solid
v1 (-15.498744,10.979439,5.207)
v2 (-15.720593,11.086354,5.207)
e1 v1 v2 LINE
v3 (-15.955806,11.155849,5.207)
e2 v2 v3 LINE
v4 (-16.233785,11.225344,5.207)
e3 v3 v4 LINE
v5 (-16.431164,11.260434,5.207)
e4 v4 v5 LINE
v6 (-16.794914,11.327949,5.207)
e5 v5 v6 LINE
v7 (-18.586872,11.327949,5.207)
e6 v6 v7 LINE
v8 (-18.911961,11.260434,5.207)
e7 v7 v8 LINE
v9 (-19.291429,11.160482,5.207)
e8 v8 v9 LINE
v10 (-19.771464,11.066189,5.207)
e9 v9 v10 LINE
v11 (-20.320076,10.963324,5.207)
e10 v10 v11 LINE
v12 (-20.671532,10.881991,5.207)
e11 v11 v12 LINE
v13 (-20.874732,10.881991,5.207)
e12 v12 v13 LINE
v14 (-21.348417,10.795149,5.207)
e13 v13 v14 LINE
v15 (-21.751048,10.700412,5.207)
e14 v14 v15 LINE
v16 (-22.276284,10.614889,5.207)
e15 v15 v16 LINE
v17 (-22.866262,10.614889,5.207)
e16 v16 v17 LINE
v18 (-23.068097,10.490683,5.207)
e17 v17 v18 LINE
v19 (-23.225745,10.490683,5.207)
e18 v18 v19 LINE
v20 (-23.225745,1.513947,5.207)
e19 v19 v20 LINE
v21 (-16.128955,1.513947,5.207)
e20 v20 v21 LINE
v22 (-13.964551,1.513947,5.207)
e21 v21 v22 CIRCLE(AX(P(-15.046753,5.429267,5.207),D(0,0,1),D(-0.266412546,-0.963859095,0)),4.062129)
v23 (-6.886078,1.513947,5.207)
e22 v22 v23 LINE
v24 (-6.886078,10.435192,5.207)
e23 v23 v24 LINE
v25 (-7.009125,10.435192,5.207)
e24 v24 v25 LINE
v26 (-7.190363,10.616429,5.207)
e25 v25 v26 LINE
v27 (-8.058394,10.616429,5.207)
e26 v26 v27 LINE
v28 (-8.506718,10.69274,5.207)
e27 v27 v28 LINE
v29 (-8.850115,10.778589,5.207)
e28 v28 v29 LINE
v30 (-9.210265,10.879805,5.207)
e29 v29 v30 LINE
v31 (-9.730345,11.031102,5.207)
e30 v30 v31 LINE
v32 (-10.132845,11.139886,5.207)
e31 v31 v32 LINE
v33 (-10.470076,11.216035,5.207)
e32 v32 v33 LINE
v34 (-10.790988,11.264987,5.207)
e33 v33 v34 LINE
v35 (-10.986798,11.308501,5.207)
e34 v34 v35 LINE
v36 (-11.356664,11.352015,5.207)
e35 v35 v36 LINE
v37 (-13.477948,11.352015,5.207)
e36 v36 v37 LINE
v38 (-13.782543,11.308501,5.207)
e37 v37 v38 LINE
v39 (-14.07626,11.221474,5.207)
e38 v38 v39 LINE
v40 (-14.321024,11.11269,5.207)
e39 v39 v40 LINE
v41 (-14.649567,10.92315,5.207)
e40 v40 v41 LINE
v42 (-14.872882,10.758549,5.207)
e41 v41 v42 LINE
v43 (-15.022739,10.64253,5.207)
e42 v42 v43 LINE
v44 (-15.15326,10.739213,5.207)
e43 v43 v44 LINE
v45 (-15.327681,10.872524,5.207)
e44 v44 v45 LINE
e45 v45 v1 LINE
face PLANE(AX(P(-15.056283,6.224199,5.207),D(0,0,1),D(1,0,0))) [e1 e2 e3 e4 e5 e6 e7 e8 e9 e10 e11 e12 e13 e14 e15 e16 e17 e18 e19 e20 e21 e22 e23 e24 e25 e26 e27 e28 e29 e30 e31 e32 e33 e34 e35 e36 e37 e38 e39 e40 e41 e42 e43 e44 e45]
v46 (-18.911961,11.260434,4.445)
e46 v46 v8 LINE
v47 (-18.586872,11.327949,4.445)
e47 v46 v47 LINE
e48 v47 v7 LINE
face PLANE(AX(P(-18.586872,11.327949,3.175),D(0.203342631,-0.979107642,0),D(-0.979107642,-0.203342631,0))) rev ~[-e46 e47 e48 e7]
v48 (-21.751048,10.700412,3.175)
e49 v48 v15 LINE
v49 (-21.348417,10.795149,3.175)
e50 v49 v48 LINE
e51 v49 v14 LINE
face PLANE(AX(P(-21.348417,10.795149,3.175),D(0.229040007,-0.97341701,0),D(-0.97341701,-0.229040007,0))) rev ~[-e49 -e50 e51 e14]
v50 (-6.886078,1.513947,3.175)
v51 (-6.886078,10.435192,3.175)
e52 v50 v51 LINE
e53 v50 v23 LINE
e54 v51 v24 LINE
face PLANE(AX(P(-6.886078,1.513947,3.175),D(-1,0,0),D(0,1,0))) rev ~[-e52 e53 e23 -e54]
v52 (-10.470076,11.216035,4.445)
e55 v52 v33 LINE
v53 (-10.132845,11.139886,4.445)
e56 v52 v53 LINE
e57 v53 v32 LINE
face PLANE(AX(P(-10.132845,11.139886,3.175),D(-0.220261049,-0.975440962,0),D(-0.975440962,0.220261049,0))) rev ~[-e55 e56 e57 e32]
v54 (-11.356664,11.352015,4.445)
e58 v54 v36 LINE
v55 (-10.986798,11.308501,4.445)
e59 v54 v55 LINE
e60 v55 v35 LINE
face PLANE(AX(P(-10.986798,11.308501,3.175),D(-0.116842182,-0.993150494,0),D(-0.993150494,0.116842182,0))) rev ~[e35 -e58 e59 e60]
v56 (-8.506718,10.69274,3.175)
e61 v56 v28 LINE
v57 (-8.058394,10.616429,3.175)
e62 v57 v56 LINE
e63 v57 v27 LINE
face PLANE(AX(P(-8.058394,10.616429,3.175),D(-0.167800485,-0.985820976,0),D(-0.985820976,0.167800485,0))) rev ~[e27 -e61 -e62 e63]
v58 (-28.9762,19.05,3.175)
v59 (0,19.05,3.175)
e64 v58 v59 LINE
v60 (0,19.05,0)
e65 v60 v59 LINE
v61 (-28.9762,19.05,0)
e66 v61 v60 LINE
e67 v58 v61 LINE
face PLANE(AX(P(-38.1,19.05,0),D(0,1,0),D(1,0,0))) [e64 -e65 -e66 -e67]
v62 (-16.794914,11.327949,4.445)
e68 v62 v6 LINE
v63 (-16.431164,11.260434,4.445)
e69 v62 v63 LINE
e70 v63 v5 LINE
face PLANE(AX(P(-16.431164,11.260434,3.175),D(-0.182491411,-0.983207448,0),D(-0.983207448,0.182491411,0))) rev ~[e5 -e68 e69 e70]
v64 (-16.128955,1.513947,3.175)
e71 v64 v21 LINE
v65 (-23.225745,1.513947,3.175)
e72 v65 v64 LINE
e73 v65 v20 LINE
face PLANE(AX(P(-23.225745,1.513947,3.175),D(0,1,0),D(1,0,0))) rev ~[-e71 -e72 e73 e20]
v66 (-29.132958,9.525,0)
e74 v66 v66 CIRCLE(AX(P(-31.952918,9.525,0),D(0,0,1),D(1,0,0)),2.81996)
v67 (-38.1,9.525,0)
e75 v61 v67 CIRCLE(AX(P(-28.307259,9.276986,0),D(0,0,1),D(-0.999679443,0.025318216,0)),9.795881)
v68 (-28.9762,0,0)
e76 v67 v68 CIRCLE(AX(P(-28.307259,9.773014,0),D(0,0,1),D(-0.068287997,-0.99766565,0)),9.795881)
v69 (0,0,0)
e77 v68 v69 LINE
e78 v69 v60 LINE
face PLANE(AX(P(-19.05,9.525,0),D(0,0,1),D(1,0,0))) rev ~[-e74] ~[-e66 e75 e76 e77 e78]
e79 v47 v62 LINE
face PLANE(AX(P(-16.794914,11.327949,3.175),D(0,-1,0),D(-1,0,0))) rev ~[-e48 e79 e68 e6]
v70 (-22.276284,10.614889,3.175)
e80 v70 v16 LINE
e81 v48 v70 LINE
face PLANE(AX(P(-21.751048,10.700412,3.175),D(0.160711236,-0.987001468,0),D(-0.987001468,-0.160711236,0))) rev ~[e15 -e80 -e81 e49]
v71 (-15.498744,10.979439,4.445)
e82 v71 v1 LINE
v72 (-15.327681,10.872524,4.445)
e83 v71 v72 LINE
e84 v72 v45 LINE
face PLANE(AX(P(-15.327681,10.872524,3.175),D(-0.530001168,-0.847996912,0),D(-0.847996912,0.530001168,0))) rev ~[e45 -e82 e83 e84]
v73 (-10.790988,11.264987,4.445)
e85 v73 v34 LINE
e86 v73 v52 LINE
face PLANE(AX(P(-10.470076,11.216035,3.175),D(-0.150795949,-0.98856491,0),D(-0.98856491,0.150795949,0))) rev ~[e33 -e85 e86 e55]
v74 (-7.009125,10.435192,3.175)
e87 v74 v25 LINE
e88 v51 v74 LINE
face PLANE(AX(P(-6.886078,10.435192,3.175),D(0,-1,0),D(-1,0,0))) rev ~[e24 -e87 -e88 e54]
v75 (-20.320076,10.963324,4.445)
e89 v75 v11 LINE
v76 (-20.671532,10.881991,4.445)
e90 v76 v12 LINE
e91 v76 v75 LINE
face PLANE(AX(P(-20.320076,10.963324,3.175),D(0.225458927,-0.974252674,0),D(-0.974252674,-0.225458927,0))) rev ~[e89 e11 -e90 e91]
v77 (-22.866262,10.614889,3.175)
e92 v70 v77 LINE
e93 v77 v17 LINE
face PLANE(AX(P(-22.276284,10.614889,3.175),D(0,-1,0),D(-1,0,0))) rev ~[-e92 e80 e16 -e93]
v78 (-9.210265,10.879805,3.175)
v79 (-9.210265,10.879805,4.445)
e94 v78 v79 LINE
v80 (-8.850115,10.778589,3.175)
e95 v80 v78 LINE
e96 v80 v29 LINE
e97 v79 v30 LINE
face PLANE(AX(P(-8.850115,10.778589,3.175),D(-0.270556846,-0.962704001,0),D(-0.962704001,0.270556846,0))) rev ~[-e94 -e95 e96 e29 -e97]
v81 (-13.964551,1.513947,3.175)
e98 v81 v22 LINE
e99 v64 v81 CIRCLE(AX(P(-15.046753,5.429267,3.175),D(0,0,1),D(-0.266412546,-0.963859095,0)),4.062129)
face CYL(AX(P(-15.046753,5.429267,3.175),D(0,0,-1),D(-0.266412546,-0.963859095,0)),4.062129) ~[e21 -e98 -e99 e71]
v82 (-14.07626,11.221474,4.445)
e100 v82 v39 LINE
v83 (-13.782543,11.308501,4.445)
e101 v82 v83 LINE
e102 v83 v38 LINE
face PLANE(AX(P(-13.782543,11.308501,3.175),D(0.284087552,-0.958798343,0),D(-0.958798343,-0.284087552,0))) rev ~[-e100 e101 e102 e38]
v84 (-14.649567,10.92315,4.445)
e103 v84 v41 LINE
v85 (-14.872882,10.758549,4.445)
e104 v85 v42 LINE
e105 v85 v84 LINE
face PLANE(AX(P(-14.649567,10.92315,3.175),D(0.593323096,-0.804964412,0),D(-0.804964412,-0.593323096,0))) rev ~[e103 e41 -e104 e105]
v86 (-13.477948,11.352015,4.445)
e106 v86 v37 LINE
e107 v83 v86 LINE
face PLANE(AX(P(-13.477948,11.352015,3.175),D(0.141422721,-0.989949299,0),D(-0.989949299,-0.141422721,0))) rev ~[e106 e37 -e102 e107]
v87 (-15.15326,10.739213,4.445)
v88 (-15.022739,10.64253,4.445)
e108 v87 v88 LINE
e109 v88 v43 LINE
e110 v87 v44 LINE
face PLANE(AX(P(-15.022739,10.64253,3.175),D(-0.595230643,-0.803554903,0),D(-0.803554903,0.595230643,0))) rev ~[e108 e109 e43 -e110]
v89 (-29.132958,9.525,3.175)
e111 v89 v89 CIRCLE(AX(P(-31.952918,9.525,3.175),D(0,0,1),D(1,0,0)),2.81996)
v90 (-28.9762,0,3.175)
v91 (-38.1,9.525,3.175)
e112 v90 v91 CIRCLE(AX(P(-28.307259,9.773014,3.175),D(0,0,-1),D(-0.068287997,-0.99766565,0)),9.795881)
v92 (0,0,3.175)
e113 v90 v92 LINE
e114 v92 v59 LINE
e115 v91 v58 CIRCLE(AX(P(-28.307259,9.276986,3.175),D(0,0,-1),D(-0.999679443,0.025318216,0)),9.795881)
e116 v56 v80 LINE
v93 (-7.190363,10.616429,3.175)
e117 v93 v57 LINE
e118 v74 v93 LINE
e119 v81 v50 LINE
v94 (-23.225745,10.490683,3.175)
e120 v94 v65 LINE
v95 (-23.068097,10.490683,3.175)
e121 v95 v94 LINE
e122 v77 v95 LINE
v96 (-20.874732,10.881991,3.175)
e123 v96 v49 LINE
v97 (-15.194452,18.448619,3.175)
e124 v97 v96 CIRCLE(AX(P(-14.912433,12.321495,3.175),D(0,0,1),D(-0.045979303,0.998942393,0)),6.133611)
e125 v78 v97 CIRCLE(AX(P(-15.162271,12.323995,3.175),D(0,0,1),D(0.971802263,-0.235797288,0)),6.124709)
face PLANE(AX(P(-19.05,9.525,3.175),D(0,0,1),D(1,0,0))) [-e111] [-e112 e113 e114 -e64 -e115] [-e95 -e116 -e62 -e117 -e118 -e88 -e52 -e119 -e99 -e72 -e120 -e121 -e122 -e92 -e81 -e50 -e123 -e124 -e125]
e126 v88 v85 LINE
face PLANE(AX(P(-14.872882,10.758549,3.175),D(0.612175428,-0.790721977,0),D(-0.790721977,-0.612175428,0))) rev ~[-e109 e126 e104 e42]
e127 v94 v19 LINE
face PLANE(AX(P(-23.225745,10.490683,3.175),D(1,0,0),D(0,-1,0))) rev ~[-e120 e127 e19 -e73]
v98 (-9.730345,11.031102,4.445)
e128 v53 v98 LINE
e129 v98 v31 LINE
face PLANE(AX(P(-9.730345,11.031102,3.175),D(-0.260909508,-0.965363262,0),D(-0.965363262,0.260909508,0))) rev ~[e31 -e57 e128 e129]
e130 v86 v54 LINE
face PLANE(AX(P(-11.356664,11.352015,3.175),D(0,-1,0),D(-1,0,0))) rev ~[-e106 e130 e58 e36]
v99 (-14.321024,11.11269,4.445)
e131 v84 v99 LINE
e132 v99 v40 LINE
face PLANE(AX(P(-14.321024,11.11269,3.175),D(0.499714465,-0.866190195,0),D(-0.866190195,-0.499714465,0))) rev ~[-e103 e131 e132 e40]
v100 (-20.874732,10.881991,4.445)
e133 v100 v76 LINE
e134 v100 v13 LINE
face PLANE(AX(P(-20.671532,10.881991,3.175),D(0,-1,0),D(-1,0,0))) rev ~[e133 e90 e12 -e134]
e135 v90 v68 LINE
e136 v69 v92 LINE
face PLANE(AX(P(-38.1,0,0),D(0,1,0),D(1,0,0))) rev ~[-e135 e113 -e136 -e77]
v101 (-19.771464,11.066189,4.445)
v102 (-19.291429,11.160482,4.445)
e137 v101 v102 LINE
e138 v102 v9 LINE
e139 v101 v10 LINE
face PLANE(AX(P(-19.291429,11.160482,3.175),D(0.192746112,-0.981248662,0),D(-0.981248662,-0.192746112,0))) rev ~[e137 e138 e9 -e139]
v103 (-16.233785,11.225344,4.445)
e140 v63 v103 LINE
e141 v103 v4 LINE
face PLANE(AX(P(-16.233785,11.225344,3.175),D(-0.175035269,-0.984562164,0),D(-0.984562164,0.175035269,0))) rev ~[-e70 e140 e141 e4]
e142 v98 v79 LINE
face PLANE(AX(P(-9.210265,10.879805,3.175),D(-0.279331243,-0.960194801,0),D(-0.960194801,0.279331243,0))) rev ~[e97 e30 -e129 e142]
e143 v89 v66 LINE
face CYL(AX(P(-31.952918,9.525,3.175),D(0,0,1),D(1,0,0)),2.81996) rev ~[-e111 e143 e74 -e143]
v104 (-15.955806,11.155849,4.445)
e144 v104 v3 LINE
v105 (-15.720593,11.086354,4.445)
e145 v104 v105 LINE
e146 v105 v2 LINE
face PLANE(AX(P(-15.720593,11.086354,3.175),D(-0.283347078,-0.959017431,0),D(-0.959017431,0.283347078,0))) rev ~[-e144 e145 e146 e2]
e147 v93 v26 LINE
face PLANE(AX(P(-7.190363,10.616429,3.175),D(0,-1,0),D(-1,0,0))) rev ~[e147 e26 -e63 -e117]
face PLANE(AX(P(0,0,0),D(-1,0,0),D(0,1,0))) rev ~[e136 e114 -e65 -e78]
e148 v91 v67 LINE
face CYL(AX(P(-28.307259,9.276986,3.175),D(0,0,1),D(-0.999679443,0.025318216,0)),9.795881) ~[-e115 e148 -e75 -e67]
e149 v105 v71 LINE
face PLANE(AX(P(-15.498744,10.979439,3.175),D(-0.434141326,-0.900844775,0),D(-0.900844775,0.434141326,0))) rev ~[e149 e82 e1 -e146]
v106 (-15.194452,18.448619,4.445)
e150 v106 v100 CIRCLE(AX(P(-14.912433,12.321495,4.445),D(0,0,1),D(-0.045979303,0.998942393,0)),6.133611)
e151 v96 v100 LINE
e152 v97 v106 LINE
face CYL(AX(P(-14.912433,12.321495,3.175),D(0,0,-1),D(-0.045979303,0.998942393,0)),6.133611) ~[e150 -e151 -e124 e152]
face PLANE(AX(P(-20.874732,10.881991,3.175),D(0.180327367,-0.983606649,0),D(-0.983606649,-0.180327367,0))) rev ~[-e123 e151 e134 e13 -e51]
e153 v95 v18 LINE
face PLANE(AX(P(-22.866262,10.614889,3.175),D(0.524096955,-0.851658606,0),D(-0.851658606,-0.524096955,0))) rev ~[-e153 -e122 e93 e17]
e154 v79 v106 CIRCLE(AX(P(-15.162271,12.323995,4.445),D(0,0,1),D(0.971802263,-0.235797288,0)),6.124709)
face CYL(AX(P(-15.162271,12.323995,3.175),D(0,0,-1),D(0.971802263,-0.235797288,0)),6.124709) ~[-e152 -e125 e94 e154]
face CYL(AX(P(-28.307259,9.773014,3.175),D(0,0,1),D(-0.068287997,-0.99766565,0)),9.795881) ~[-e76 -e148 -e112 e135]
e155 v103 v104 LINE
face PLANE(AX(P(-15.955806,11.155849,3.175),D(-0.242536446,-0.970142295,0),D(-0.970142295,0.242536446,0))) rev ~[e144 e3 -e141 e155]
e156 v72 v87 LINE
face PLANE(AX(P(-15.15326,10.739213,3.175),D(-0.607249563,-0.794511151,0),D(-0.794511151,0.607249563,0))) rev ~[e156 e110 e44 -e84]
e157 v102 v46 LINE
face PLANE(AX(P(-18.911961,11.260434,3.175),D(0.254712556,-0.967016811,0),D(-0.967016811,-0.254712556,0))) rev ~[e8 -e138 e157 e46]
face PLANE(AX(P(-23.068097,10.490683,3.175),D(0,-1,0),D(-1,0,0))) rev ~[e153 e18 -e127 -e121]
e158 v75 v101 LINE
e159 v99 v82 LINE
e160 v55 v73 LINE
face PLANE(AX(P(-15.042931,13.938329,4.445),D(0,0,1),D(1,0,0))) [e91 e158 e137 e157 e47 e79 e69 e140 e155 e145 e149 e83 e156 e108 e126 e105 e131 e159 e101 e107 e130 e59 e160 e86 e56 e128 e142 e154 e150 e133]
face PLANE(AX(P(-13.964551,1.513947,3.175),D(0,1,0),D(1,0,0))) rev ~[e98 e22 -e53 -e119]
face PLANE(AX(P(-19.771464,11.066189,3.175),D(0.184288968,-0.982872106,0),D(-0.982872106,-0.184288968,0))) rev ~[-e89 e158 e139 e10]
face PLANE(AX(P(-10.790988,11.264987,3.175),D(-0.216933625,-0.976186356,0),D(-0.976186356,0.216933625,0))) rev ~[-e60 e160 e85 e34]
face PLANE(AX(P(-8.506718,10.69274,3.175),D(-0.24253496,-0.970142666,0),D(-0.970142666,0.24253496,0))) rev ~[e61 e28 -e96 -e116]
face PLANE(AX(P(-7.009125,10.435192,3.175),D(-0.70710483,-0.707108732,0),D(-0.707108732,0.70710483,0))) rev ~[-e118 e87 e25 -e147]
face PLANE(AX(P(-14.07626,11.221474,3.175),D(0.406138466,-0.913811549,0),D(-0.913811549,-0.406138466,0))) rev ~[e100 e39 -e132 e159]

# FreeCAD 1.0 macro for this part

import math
import FreeCAD as App
import Part
import Sketcher
Q = App.Units.Quantity

doc = App.newDocument("Part")
params = doc.addObject("Spreadsheet::Sheet", "Params")
for row, (alias, value) in enumerate([
    ("sketch1_width", "1.5 in"),
    ("sketch1_height", "0.75 in"),
    ("pad1_length", "0.125 in"),
    ("sketch2_height", "0.375 in"),
    ("sketch3_width", "0.008 in"),
    ("pad2_length", "0.05 in"),
    ("sketch4_width", "0.008 in"),
    ("pad3_length", "0.08 in"),
], start=1):
    params.set(f"A{row}", alias)
    params.set(f"B{row}", "=" + value)
    params.setAlias(f"B{row}", alias)

body = doc.addObject("PartDesign::Body", "Body")

# Sketch on XY plane
sketch1 = doc.addObject("Sketcher::SketchObject", "Sketch")
body.addObject(sketch1)
sketch1.AttachmentSupport = (doc.XY_Plane, [""])
sketch1.MapMode = "FlatFace"
sketch1.addGeometry(Part.LineSegment(App.Vector(-38, 19, 0), App.Vector(-38, 0, 0)), False)
sketch1.addGeometry(Part.LineSegment(App.Vector(-38, 0, 0), App.Vector(0, 0, 0)), False)
sketch1.addGeometry(Part.LineSegment(App.Vector(0, 0, 0), App.Vector(0, 19, 0)), False)
sketch1.addGeometry(Part.LineSegment(App.Vector(0, 19, 0), App.Vector(-38, 19, 0)), False)
sketch1.addConstraint(Sketcher.Constraint("Coincident", 0, 2, 1, 1))
sketch1.addConstraint(Sketcher.Constraint("Coincident", 1, 2, 2, 1))
sketch1.addConstraint(Sketcher.Constraint("Coincident", 2, 2, 3, 1))
sketch1.addConstraint(Sketcher.Constraint("Coincident", 3, 2, 0, 1))
sketch1.addConstraint(Sketcher.Constraint("Vertical", 0))
sketch1.addConstraint(Sketcher.Constraint("Horizontal", 1))
sketch1.addConstraint(Sketcher.Constraint("Vertical", 2))
sketch1.addConstraint(Sketcher.Constraint("Horizontal", 3))
sketch1.addConstraint(Sketcher.Constraint("Coincident", 1, 2, -1, 1))
sketch1.addConstraint(Sketcher.Constraint("DistanceX", 1, 1, 1, 2, Q("1.5 in")))
sketch1.addConstraint(Sketcher.Constraint("DistanceY", 0, 2, 0, 1, Q("0.75 in")))
sketch1.setExpression("Constraints[9]", "Params.sketch1_width")
sketch1.setExpression("Constraints[10]", "Params.sketch1_height")
pad1 = doc.addObject("PartDesign::Pad", "Pad")
body.addObject(pad1)
pad1.Profile = sketch1
pad1.setExpression("Length", "Params.pad1_length")

# Sketch on XY plane
sketch2 = doc.addObject("Sketcher::SketchObject", "Sketch001")
body.addObject(sketch2)
sketch2.AttachmentSupport = (doc.XY_Plane, [""])
sketch2.MapMode = "FlatFace"
sketch2.AttachmentOffset = App.Placement(App.Vector(0, 0, 0.125 * 25.4), App.Rotation())
sketch2.addGeometry(Part.ArcOfCircle(Part.Circle(App.Vector(-28.3, 9.3, 0), App.Vector(0, 0, 1), 9.8), math.radians(94), math.radians(179)), False)
sketch2.addGeometry(Part.LineSegment(App.Vector(-29, 19.1, 0), App.Vector(-38.1, 19.1, 0)), False)
sketch2.addGeometry(Part.LineSegment(App.Vector(-38.1, 19.1, 0), App.Vector(-38.1, 9.5, 0)), False)
sketch2.addGeometry(Part.ArcOfCircle(Part.Circle(App.Vector(-28.3, 9.8, 0), App.Vector(0, 0, 1), 9.8), math.radians(-179), math.radians(-94)), False)
sketch2.addGeometry(Part.LineSegment(App.Vector(-38.1, 9.5, 0), App.Vector(-38.1, 0, 0)), False)
sketch2.addGeometry(Part.LineSegment(App.Vector(-38.1, 0, 0), App.Vector(-29, 0, 0)), False)
sketch2.addGeometry(Part.Circle(App.Vector(-32, 9.5, 0), App.Vector(0, 0, 1), 2.8), False)
sketch2.addConstraint(Sketcher.Constraint("Coincident", 0, 1, 1, 1))
sketch2.addConstraint(Sketcher.Constraint("Coincident", 1, 2, 2, 1))
sketch2.addConstraint(Sketcher.Constraint("Coincident", 2, 2, 0, 2))
sketch2.addConstraint(Sketcher.Constraint("Coincident", 3, 1, 4, 1))
sketch2.addConstraint(Sketcher.Constraint("Coincident", 4, 2, 5, 1))
sketch2.addConstraint(Sketcher.Constraint("Coincident", 5, 2, 3, 2))
sketch2.addConstraint(Sketcher.Constraint("Horizontal", 1))
sketch2.addConstraint(Sketcher.Constraint("Vertical", 2))
sketch2.addConstraint(Sketcher.Constraint("Vertical", 4))
sketch2.addConstraint(Sketcher.Constraint("Horizontal", 5))
sketch2.addConstraint(Sketcher.Constraint("Coincident", 3, 1, 2, 2))
sketch2.addConstraint(Sketcher.Constraint("Equal", 0, 3))
sketch2.addConstraint(Sketcher.Constraint("PointOnObject", 4, 2, -1))
sketch2.addConstraint(Sketcher.Constraint("Horizontal", 6, 3, 2, 2))
sketch2.addConstraint(Sketcher.Constraint("Vertical", 0, 3, 3, 3))
sketch2.addConstraint(Sketcher.Constraint("Vertical", 0, 1, 5, 2))
sketch2.addConstraint(Sketcher.Constraint("DistanceX", 1, 2, -1, 1, Q("1.5 in")))
sketch2.addConstraint(Sketcher.Constraint("DistanceY", 2, 2, 2, 1, Q("0.375 in")))
sketch2.addConstraint(Sketcher.Constraint("Diameter", 6, 5.63992))
sketch2.addConstraint(Sketcher.Constraint("Radius", 0, 9.795881))
sketch2.addConstraint(Sketcher.Constraint("DistanceX", 1, 2, 1, 1, 9.1238))
sketch2.addConstraint(Sketcher.Constraint("DistanceX", 6, 3, -1, 1, 31.952918))
sketch2.setExpression("Constraints[17]", "Params.sketch2_height")
pocket1 = doc.addObject("PartDesign::Pocket", "Pocket")
body.addObject(pocket1)
pocket1.Profile = sketch2
pocket1.Type = "ThroughAll"

# Sketch on XY plane
sketch3 = doc.addObject("Sketcher::SketchObject", "Sketch002")
body.addObject(sketch3)
sketch3.AttachmentSupport = (doc.XY_Plane, [""])
sketch3.MapMode = "FlatFace"
sketch3.AttachmentOffset = App.Placement(App.Vector(0, 0, 0.125 * 25.4), App.Rotation())
sketch3.addGeometry(Part.ArcOfCircle(Part.Circle(App.Vector(-14.91, 12.32, 0), App.Vector(0, 0, 1), 6.13), math.radians(93), math.radians(194)), False)
sketch3.addGeometry(Part.LineSegment(App.Vector(-20.87, 10.88, 0), App.Vector(-20.67, 10.88, 0)), False)
sketch3.addGeometry(Part.LineSegment(App.Vector(-20.67, 10.88, 0), App.Vector(-20.32, 10.96, 0)), False)
sketch3.addGeometry(Part.LineSegment(App.Vector(-20.32, 10.96, 0), App.Vector(-19.77, 11.07, 0)), False)
sketch3.addGeometry(Part.LineSegment(App.Vector(-19.77, 11.07, 0), App.Vector(-19.29, 11.16, 0)), False)
sketch3.addGeometry(Part.LineSegment(App.Vector(-19.29, 11.16, 0), App.Vector(-18.91, 11.26, 0)), False)
sketch3.addGeometry(Part.LineSegment(App.Vector(-18.91, 11.26, 0), App.Vector(-18.59, 11.33, 0)), False)
sketch3.addGeometry(Part.LineSegment(App.Vector(-18.59, 11.33, 0), App.Vector(-16.79, 11.33, 0)), False)
sketch3.addGeometry(Part.LineSegment(App.Vector(-16.79, 11.33, 0), App.Vector(-16.43, 11.26, 0)), False)
sketch3.addGeometry(Part.LineSegment(App.Vector(-16.43, 11.26, 0), App.Vector(-16.23, 11.23, 0)), False)
sketch3.addGeometry(Part.LineSegment(App.Vector(-16.23, 11.23, 0), App.Vector(-15.96, 11.16, 0)), False)
sketch3.addGeometry(Part.LineSegment(App.Vector(-15.96, 11.16, 0), App.Vector(-15.72, 11.09, 0)), False)
sketch3.addGeometry(Part.LineSegment(App.Vector(-15.72, 11.09, 0), App.Vector(-15.5, 10.98, 0)), False)
sketch3.addGeometry(Part.LineSegment(App.Vector(-15.5, 10.98, 0), App.Vector(-15.33, 10.87, 0)), False)
sketch3.addGeometry(Part.LineSegment(App.Vector(-15.33, 10.87, 0), App.Vector(-15.15, 10.74, 0)), False)
sketch3.addGeometry(Part.LineSegment(App.Vector(-15.15, 10.74, 0), App.Vector(-15.02, 10.64, 0)), False)
sketch3.addGeometry(Part.LineSegment(App.Vector(-15.02, 10.64, 0), App.Vector(-14.87, 10.76, 0)), False)
sketch3.addGeometry(Part.LineSegment(App.Vector(-14.87, 10.76, 0), App.Vector(-14.65, 10.92, 0)), False)
sketch3.addGeometry(Part.LineSegment(App.Vector(-14.65, 10.92, 0), App.Vector(-14.32, 11.11, 0)), False)
sketch3.addGeometry(Part.LineSegment(App.Vector(-14.32, 11.11, 0), App.Vector(-14.08, 11.22, 0)), False)
sketch3.addGeometry(Part.LineSegment(App.Vector(-14.08, 11.22, 0), App.Vector(-13.78, 11.31, 0)), False)
sketch3.addGeometry(Part.LineSegment(App.Vector(-13.78, 11.31, 0), App.Vector(-13.48, 11.35, 0)), False)
sketch3.addGeometry(Part.LineSegment(App.Vector(-13.48, 11.35, 0), App.Vector(-11.36, 11.35, 0)), False)
sketch3.addGeometry(Part.LineSegment(App.Vector(-11.36, 11.35, 0), App.Vector(-10.99, 11.31, 0)), False)
sketch3.addGeometry(Part.LineSegment(App.Vector(-10.99, 11.31, 0), App.Vector(-10.79, 11.26, 0)), False)
sketch3.addGeometry(Part.LineSegment(App.Vector(-10.79, 11.26, 0), App.Vector(-10.47, 11.22, 0)), False)
sketch3.addGeometry(Part.LineSegment(App.Vector(-10.47, 11.22, 0), App.Vector(-10.13, 11.14, 0)), False)
sketch3.addGeometry(Part.LineSegment(App.Vector(-10.13, 11.14, 0), App.Vector(-9.73, 11.03, 0)), False)
sketch3.addGeometry(Part.LineSegment(App.Vector(-9.73, 11.03, 0), App.Vector(-9.21, 10.88, 0)), False)
sketch3.addGeometry(Part.ArcOfCircle(Part.Circle(App.Vector(-15.16, 12.32, 0), App.Vector(0, 0, 1), 6.12), math.radians(-14), math.radians(90)), False)
sketch3.addConstraint(Sketcher.Constraint("Coincident", 0, 2, 1, 1))
sketch3.addConstraint(Sketcher.Constraint("Coincident", 1, 2, 2, 1))
sketch3.addConstraint(Sketcher.Constraint("Coincident", 2, 2, 3, 1))
sketch3.addConstraint(Sketcher.Constraint("Coincident", 3, 2, 4, 1))
sketch3.addConstraint(Sketcher.Constraint("Coincident", 4, 2, 5, 1))
sketch3.addConstraint(Sketcher.Constraint("Coincident", 5, 2, 6, 1))
sketch3.addConstraint(Sketcher.Constraint("Coincident", 6, 2, 7, 1))
sketch3.addConstraint(Sketcher.Constraint("Coincident", 7, 2, 8, 1))
sketch3.addConstraint(Sketcher.Constraint("Coincident", 8, 2, 9, 1))
sketch3.addConstraint(Sketcher.Constraint("Coincident", 9, 2, 10, 1))
sketch3.addConstraint(Sketcher.Constraint("Coincident", 10, 2, 11, 1))
sketch3.addConstraint(Sketcher.Constraint("Coincident", 11, 2, 12, 1))
sketch3.addConstraint(Sketcher.Constraint("Coincident", 12, 2, 13, 1))
sketch3.addConstraint(Sketcher.Constraint("Coincident", 13, 2, 14, 1))
sketch3.addConstraint(Sketcher.Constraint("Coincident", 14, 2, 15, 1))
sketch3.addConstraint(Sketcher.Constraint("Coincident", 15, 2, 16, 1))
sketch3.addConstraint(Sketcher.Constraint("Coincident", 16, 2, 17, 1))
sketch3.addConstraint(Sketcher.Constraint("Coincident", 17, 2, 18, 1))
sketch3.addConstraint(Sketcher.Constraint("Coincident", 18, 2, 19, 1))
sketch3.addConstraint(Sketcher.Constraint("Coincident", 19, 2, 20, 1))
sketch3.addConstraint(Sketcher.Constraint("Coincident", 20, 2, 21, 1))
sketch3.addConstraint(Sketcher.Constraint("Coincident", 21, 2, 22, 1))
sketch3.addConstraint(Sketcher.Constraint("Coincident", 22, 2, 23, 1))
sketch3.addConstraint(Sketcher.Constraint("Coincident", 23, 2, 24, 1))
sketch3.addConstraint(Sketcher.Constraint("Coincident", 24, 2, 25, 1))
sketch3.addConstraint(Sketcher.Constraint("Coincident", 25, 2, 26, 1))
sketch3.addConstraint(Sketcher.Constraint("Coincident", 26, 2, 27, 1))
sketch3.addConstraint(Sketcher.Constraint("Coincident", 27, 2, 28, 1))
sketch3.addConstraint(Sketcher.Constraint("Coincident", 28, 2, 29, 1))
sketch3.addConstraint(Sketcher.Constraint("Coincident", 29, 2, 0, 1))
sketch3.addConstraint(Sketcher.Constraint("Horizontal", 1))
sketch3.addConstraint(Sketcher.Constraint("Horizontal", 7))
sketch3.addConstraint(Sketcher.Constraint("Horizontal", 22))
sketch3.addConstraint(Sketcher.Constraint("Horizontal", 5, 2, 8, 2))
sketch3.addConstraint(Sketcher.Constraint("Horizontal", 20, 2, 23, 2))
sketch3.addConstraint(Sketcher.Constraint("DistanceX", 1, 1, 1, 2, Q("0.008 in")))
sketch3.addConstraint(Sketcher.Constraint("Radius", 0, 6.133611))
sketch3.addConstraint(Sketcher.Constraint("Radius", 29, 6.124709))
sketch3.addConstraint(Sketcher.Constraint("DistanceX", 0, 2, 29, 3, Q("0.2249 in")))
sketch3.addConstraint(Sketcher.Constraint("DistanceX", 15, 2, 16, 2, Q("0.0058999 in")))
sketch3.addConstraint(Sketcher.Constraint("DistanceX", 18, 2, 20, 2, Q("0.0212 in")))
sketch3.addConstraint(Sketcher.Constraint("DistanceX", 7, 1, 7, 2, 1.791958))
sketch3.addConstraint(Sketcher.Constraint("DistanceY", -1, 1, 20, 2, 11.308501))
sketch3.addConstraint(Sketcher.Constraint("DistanceY", 0, 3, 29, 3, 0.0025))
sketch3.addConstraint(Sketcher.Constraint("DistanceX", 0, 2, 0, 3, 5.962299))
sketch3.addConstraint(Sketcher.Constraint("DistanceY", 1, 2, 3, 2, 0.184198))
sketch3.addConstraint(Sketcher.Constraint("DistanceY", 10, 2, 7, 2, 0.1721))
sketch3.addConstraint(Sketcher.Constraint("DistanceX", 13, 2, 16, 2, 0.454799))
sketch3.addConstraint(Sketcher.Constraint("DistanceY", 16, 2, 17, 2, 0.164601))
sketch3.addConstraint(Sketcher.Constraint("DistanceX", 14, 2, 19, 2, 1.077))
sketch3.addConstraint(Sketcher.Constraint("DistanceY", 26, 2, 24, 2, 0.125101))
sketch3.addConstraint(Sketcher.Constraint("DistanceX", 26, 2, 27, 2, 0.4025))
sketch3.addConstraint(Sketcher.Constraint("DistanceY", 27, 2, 23, 2, 0.277399))
sketch3.addConstraint(Sketcher.Constraint("Distance", 4, 0.489208))
sketch3.addConstraint(Sketcher.Constraint("Distance", 5, 0.392411))
sketch3.addConstraint(Sketcher.Constraint("Distance", 15, 0.162429))
sketch3.addConstraint(Sketcher.Constraint("Distance", 16, 0.189519))
sketch3.addConstraint(Sketcher.Constraint("Distance", 19, 0.26785))
sketch3.addConstraint(Sketcher.Constraint("Distance", 20, 0.306339))
sketch3.addConstraint(Sketcher.Constraint("Distance", 26, 0.345722))
sketch3.addConstraint(Sketcher.Constraint("Distance", 27, 0.416941))
sketch3.addConstraint(Sketcher.Constraint("Distance", 28, 0.54164))
sketch3.addConstraint(Sketcher.Constraint("DistanceX", 22, 1, 22, 2, 2.121284))
sketch3.addConstraint(Sketcher.Constraint("DistanceX", 29, 3, -1, 1, 15.162271))
sketch3.addConstraint(Sketcher.Constraint("DistanceY", -1, 1, 0, 2, 10.881991))
sketch3.addConstraint(Sketcher.Constraint("DistanceX", 4, 2, -1, 1, 19.291429))
sketch3.addConstraint(Sketcher.Constraint("DistanceX", 5, 2, -1, 1, 18.911961))
sketch3.addConstraint(Sketcher.Constraint("DistanceX", 6, 2, -1, 1, 18.586872))
sketch3.addConstraint(Sketcher.Constraint("DistanceY", -1, 1, 6, 2, 11.327949))
sketch3.addConstraint(Sketcher.Constraint("DistanceY", -1, 1, 12, 2, 10.979439))
sketch3.addConstraint(Sketcher.Constraint("DistanceX", 13, 2, -1, 1, 15.327681))
sketch3.addConstraint(Sketcher.Constraint("DistanceX", 14, 2, -1, 1, 15.15326))
sketch3.addConstraint(Sketcher.Constraint("DistanceY", -1, 1, 15, 2, 10.64253))
sketch3.addConstraint(Sketcher.Constraint("DistanceY", -1, 1, 18, 2, 11.11269))
sketch3.addConstraint(Sketcher.Constraint("DistanceY", 2, 2, 29, 3, 1.360671))
sketch3.addConstraint(Sketcher.Constraint("DistanceX", 2, 2, 3, 2, 0.548612))
sketch3.addConstraint(Sketcher.Constraint("DistanceX", 0, 2, 3, 2, 1.103268))
sketch3.addConstraint(Sketcher.Constraint("DistanceX", 7, 2, 8, 2, 0.36375))
sketch3.addConstraint(Sketcher.Constraint("DistanceX", 8, 2, 9, 2, 0.197379))
sketch3.addConstraint(Sketcher.Constraint("DistanceY", 9, 2, 8, 2, 0.03509))
sketch3.addConstraint(Sketcher.Constraint("DistanceX", 9, 2, 10, 2, 0.277979))
sketch3.addConstraint(Sketcher.Constraint("DistanceY", 11, 2, 9, 2, 0.13899))
sketch3.addConstraint(Sketcher.Constraint("DistanceX", 8, 2, 11, 2, 0.710571))
sketch3.addConstraint(Sketcher.Constraint("DistanceX", 11, 2, 12, 2, 0.221849))
sketch3.addConstraint(Sketcher.Constraint("DistanceY", 13, 2, 11, 2, 0.21383))
sketch3.addConstraint(Sketcher.Constraint("DistanceX", 19, 2, 21, 2, 0.598312))
sketch3.addConstraint(Sketcher.Constraint("DistanceY", 19, 2, 21, 2, 0.130541))
sketch3.addConstraint(Sketcher.Constraint("DistanceX", 17, 2, 21, 2, 1.171619))
sketch3.addConstraint(Sketcher.Constraint("DistanceX", 21, 2, 23, 2, 2.49115))
sketch3.addConstraint(Sketcher.Constraint("DistanceX", 23, 2, 24, 2, 0.19581))
sketch3.addConstraint(Sketcher.Constraint("DistanceX", 24, 2, 25, 2, 0.320912))
sketch3.addConstraint(Sketcher.Constraint("DistanceY", 25, 2, 24, 2, 0.048952))
sketch3.setExpression("Constraints[35]", "Params.sketch3_width")
pad2 = doc.addObject("PartDesign::Pad", "Pad001")
body.addObject(pad2)
pad2.Profile = sketch3
pad2.setExpression("Length", "Params.pad2_length")

# Sketch on XY plane
sketch4 = doc.addObject("Sketcher::SketchObject", "Sketch003")
body.addObject(sketch4)
sketch4.AttachmentSupport = (doc.XY_Plane, [""])
sketch4.MapMode = "FlatFace"
sketch4.AttachmentOffset = App.Placement(App.Vector(0, 0, 0.125 * 25.4), App.Rotation())
sketch4.addGeometry(Part.LineSegment(App.Vector(-23.07, 10.49, 0), App.Vector(-23.23, 10.49, 0)), False)
sketch4.addGeometry(Part.LineSegment(App.Vector(-23.23, 10.49, 0), App.Vector(-23.23, 1.51, 0)), False)
sketch4.addGeometry(Part.LineSegment(App.Vector(-23.23, 1.51, 0), App.Vector(-16.13, 1.51, 0)), False)
sketch4.addGeometry(Part.ArcOfCircle(Part.Circle(App.Vector(-15.05, 5.43, 0), App.Vector(0, 0, 1), 4.06), math.radians(-105), math.radians(-75)), False)
sketch4.addGeometry(Part.LineSegment(App.Vector(-13.96, 1.51, 0), App.Vector(-6.89, 1.51, 0)), False)
sketch4.addGeometry(Part.LineSegment(App.Vector(-6.89, 1.51, 0), App.Vector(-6.89, 10.44, 0)), False)
sketch4.addGeometry(Part.LineSegment(App.Vector(-6.89, 10.44, 0), App.Vector(-7.01, 10.44, 0)), False)
sketch4.addGeometry(Part.LineSegment(App.Vector(-7.01, 10.44, 0), App.Vector(-7.19, 10.62, 0)), False)
sketch4.addGeometry(Part.LineSegment(App.Vector(-7.19, 10.62, 0), App.Vector(-8.06, 10.62, 0)), False)
sketch4.addGeometry(Part.LineSegment(App.Vector(-8.06, 10.62, 0), App.Vector(-8.51, 10.69, 0)), False)
sketch4.addGeometry(Part.LineSegment(App.Vector(-8.51, 10.69, 0), App.Vector(-8.85, 10.78, 0)), False)
sketch4.addGeometry(Part.LineSegment(App.Vector(-8.85, 10.78, 0), App.Vector(-9.21, 10.88, 0)), False)
sketch4.addGeometry(Part.LineSegment(App.Vector(-9.21, 10.88, 0), App.Vector(-9.73, 11.03, 0)), False)
sketch4.addGeometry(Part.LineSegment(App.Vector(-9.73, 11.03, 0), App.Vector(-10.13, 11.14, 0)), False)
sketch4.addGeometry(Part.LineSegment(App.Vector(-10.13, 11.14, 0), App.Vector(-10.47, 11.22, 0)), False)
sketch4.addGeometry(Part.LineSegment(App.Vector(-10.47, 11.22, 0), App.Vector(-10.79, 11.26, 0)), False)
sketch4.addGeometry(Part.LineSegment(App.Vector(-10.79, 11.26, 0), App.Vector(-10.99, 11.31, 0)), False)
sketch4.addGeometry(Part.LineSegment(App.Vector(-10.99, 11.31, 0), App.Vector(-11.36, 11.35, 0)), False)
sketch4.addGeometry(Part.LineSegment(App.Vector(-11.36, 11.35, 0), App.Vector(-13.48, 11.35, 0)), False)
sketch4.addGeometry(Part.LineSegment(App.Vector(-13.48, 11.35, 0), App.Vector(-13.78, 11.31, 0)), False)
sketch4.addGeometry(Part.LineSegment(App.Vector(-13.78, 11.31, 0), App.Vector(-14.08, 11.22, 0)), False)
sketch4.addGeometry(Part.LineSegment(App.Vector(-14.08, 11.22, 0), App.Vector(-14.32, 11.11, 0)), False)
sketch4.addGeometry(Part.LineSegment(App.Vector(-14.32, 11.11, 0), App.Vector(-14.65, 10.92, 0)), False)
sketch4.addGeometry(Part.LineSegment(App.Vector(-14.65, 10.92, 0), App.Vector(-14.87, 10.76, 0)), False)
sketch4.addGeometry(Part.LineSegment(App.Vector(-14.87, 10.76, 0), App.Vector(-15.02, 10.64, 0)), False)
sketch4.addGeometry(Part.LineSegment(App.Vector(-15.02, 10.64, 0), App.Vector(-15.15, 10.74, 0)), False)
sketch4.addGeometry(Part.LineSegment(App.Vector(-15.15, 10.74, 0), App.Vector(-15.33, 10.87, 0)), False)
sketch4.addGeometry(Part.LineSegment(App.Vector(-15.33, 10.87, 0), App.Vector(-15.5, 10.98, 0)), False)
sketch4.addGeometry(Part.LineSegment(App.Vector(-15.5, 10.98, 0), App.Vector(-15.72, 11.09, 0)), False)
sketch4.addGeometry(Part.LineSegment(App.Vector(-15.72, 11.09, 0), App.Vector(-15.96, 11.16, 0)), False)
sketch4.addGeometry(Part.LineSegment(App.Vector(-15.96, 11.16, 0), App.Vector(-16.23, 11.23, 0)), False)
sketch4.addGeometry(Part.LineSegment(App.Vector(-16.23, 11.23, 0), App.Vector(-16.43, 11.26, 0)), False)
sketch4.addGeometry(Part.LineSegment(App.Vector(-16.43, 11.26, 0), App.Vector(-16.79, 11.33, 0)), False)
sketch4.addGeometry(Part.LineSegment(App.Vector(-16.79, 11.33, 0), App.Vector(-18.59, 11.33, 0)), False)
sketch4.addGeometry(Part.LineSegment(App.Vector(-18.59, 11.33, 0), App.Vector(-18.91, 11.26, 0)), False)
sketch4.addGeometry(Part.LineSegment(App.Vector(-18.91, 11.26, 0), App.Vector(-19.29, 11.16, 0)), False)
sketch4.addGeometry(Part.LineSegment(App.Vector(-19.29, 11.16, 0), App.Vector(-19.77, 11.07, 0)), False)
sketch4.addGeometry(Part.LineSegment(App.Vector(-19.77, 11.07, 0), App.Vector(-20.32, 10.96, 0)), False)
sketch4.addGeometry(Part.LineSegment(App.Vector(-20.32, 10.96, 0), App.Vector(-20.67, 10.88, 0)), False)
sketch4.addGeometry(Part.LineSegment(App.Vector(-20.67, 10.88, 0), App.Vector(-20.87, 10.88, 0)), False)
sketch4.addGeometry(Part.LineSegment(App.Vector(-20.87, 10.88, 0), App.Vector(-21.35, 10.8, 0)), False)
sketch4.addGeometry(Part.LineSegment(App.Vector(-21.35, 10.8, 0), App.Vector(-21.75, 10.7, 0)), False)
sketch4.addGeometry(Part.LineSegment(App.Vector(-21.75, 10.7, 0), App.Vector(-22.28, 10.61, 0)), False)
sketch4.addGeometry(Part.LineSegment(App.Vector(-22.28, 10.61, 0), App.Vector(-22.87, 10.61, 0)), False)
sketch4.addGeometry(Part.LineSegment(App.Vector(-22.87, 10.61, 0), App.Vector(-23.07, 10.49, 0)), False)
sketch4.addConstraint(Sketcher.Constraint("Coincident", 0, 2, 1, 1))
sketch4.addConstraint(Sketcher.Constraint("Coincident", 1, 2, 2, 1))
sketch4.addConstraint(Sketcher.Constraint("Coincident", 2, 2, 3, 1))
sketch4.addConstraint(Sketcher.Constraint("Coincident", 3, 2, 4, 1))
sketch4.addConstraint(Sketcher.Constraint("Coincident", 4, 2, 5, 1))
sketch4.addConstraint(Sketcher.Constraint("Coincident", 5, 2, 6, 1))
sketch4.addConstraint(Sketcher.Constraint("Coincident", 6, 2, 7, 1))
sketch4.addConstraint(Sketcher.Constraint("Coincident", 7, 2, 8, 1))
sketch4.addConstraint(Sketcher.Constraint("Coincident", 8, 2, 9, 1))
sketch4.addConstraint(Sketcher.Constraint("Coincident", 9, 2, 10, 1))
sketch4.addConstraint(Sketcher.Constraint("Coincident", 10, 2, 11, 1))
sketch4.addConstraint(Sketcher.Constraint("Coincident", 11, 2, 12, 1))
sketch4.addConstraint(Sketcher.Constraint("Coincident", 12, 2, 13, 1))
sketch4.addConstraint(Sketcher.Constraint("Coincident", 13, 2, 14, 1))
sketch4.addConstraint(Sketcher.Constraint("Coincident", 14, 2, 15, 1))
sketch4.addConstraint(Sketcher.Constraint("Coincident", 15, 2, 16, 1))
sketch4.addConstraint(Sketcher.Constraint("Coincident", 16, 2, 17, 1))
sketch4.addConstraint(Sketcher.Constraint("Coincident", 17, 2, 18, 1))
sketch4.addConstraint(Sketcher.Constraint("Coincident", 18, 2, 19, 1))
sketch4.addConstraint(Sketcher.Constraint("Coincident", 19, 2, 20, 1))
sketch4.addConstraint(Sketcher.Constraint("Coincident", 20, 2, 21, 1))
sketch4.addConstraint(Sketcher.Constraint("Coincident", 21, 2, 22, 1))
sketch4.addConstraint(Sketcher.Constraint("Coincident", 22, 2, 23, 1))
sketch4.addConstraint(Sketcher.Constraint("Coincident", 23, 2, 24, 1))
sketch4.addConstraint(Sketcher.Constraint("Coincident", 24, 2, 25, 1))
sketch4.addConstraint(Sketcher.Constraint("Coincident", 25, 2, 26, 1))
sketch4.addConstraint(Sketcher.Constraint("Coincident", 26, 2, 27, 1))
sketch4.addConstraint(Sketcher.Constraint("Coincident", 27, 2, 28, 1))
sketch4.addConstraint(Sketcher.Constraint("Coincident", 28, 2, 29, 1))
sketch4.addConstraint(Sketcher.Constraint("Coincident", 29, 2, 30, 1))
sketch4.addConstraint(Sketcher.Constraint("Coincident", 30, 2, 31, 1))
sketch4.addConstraint(Sketcher.Constraint("Coincident", 31, 2, 32, 1))
sketch4.addConstraint(Sketcher.Constraint("Coincident", 32, 2, 33, 1))
sketch4.addConstraint(Sketcher.Constraint("Coincident", 33, 2, 34, 1))
sketch4.addConstraint(Sketcher.Constraint("Coincident", 34, 2, 35, 1))
sketch4.addConstraint(Sketcher.Constraint("Coincident", 35, 2, 36, 1))
sketch4.addConstraint(Sketcher.Constraint("Coincident", 36, 2, 37, 1))
sketch4.addConstraint(Sketcher.Constraint("Coincident", 37, 2, 38, 1))
sketch4.addConstraint(Sketcher.Constraint("Coincident", 38, 2, 39, 1))
sketch4.addConstraint(Sketcher.Constraint("Coincident", 39, 2, 40, 1))
sketch4.addConstraint(Sketcher.Constraint("Coincident", 40, 2, 41, 1))
sketch4.addConstraint(Sketcher.Constraint("Coincident", 41, 2, 42, 1))
sketch4.addConstraint(Sketcher.Constraint("Coincident", 42, 2, 43, 1))
sketch4.addConstraint(Sketcher.Constraint("Coincident", 43, 2, 44, 1))
sketch4.addConstraint(Sketcher.Constraint("Coincident", 44, 2, 0, 1))
sketch4.addConstraint(Sketcher.Constraint("Horizontal", 0))
sketch4.addConstraint(Sketcher.Constraint("Vertical", 1))
sketch4.addConstraint(Sketcher.Constraint("Horizontal", 2))
sketch4.addConstraint(Sketcher.Constraint("Horizontal", 4))
sketch4.addConstraint(Sketcher.Constraint("Vertical", 5))
sketch4.addConstraint(Sketcher.Constraint("Horizontal", 6))
sketch4.addConstraint(Sketcher.Constraint("Horizontal", 8))
sketch4.addConstraint(Sketcher.Constraint("Horizontal", 18))
sketch4.addConstraint(Sketcher.Constraint("Horizontal", 33))
sketch4.addConstraint(Sketcher.Constraint("Horizontal", 39))
sketch4.addConstraint(Sketcher.Constraint("Horizontal", 43))
sketch4.addConstraint(Sketcher.Constraint("Parallel", 10, 30))
sketch4.addConstraint(Sketcher.Constraint("Horizontal", 2, 2, 3, 2))
sketch4.addConstraint(Sketcher.Constraint("Horizontal", 16, 2, 19, 2))
sketch4.addConstraint(Sketcher.Constraint("Horizontal", 31, 2, 34, 2))
sketch4.addConstraint(Sketcher.Constraint("DistanceX", 39, 2, 39, 1, Q("0.008 in")))
sketch4.addConstraint(Sketcher.Constraint("Radius", 3, 4.062129))
sketch4.addConstraint(Sketcher.Constraint("DistanceX", 21, 2, 19, 2, Q("0.0212 in")))
sketch4.addConstraint(Sketcher.Constraint("DistanceX", 24, 2, 23, 2, Q("0.0058999 in")))
sketch4.addConstraint(Sketcher.Constraint("DistanceX", 2, 1, 2, 2, 7.09679))
sketch4.addConstraint(Sketcher.Constraint("DistanceX", 8, 2, 8, 1, 0.868031))
sketch4.addConstraint(Sketcher.Constraint("DistanceX", 33, 2, 33, 1, 1.791958))
sketch4.addConstraint(Sketcher.Constraint("DistanceY", -1, 1, 16, 2, 11.308501))
sketch4.addConstraint(Sketcher.Constraint("DistanceX", 3, 3, 3, 2, 1.082202))
sketch4.addConstraint(Sketcher.Constraint("DistanceX", 13, 2, 12, 2, 0.4025))
sketch4.addConstraint(Sketcher.Constraint("DistanceY", 13, 2, 15, 2, 0.125101))
sketch4.addConstraint(Sketcher.Constraint("DistanceY", 12, 2, 16, 2, 0.277399))
sketch4.addConstraint(Sketcher.Constraint("DistanceY", 23, 2, 22, 2, 0.164601))
sketch4.addConstraint(Sketcher.Constraint("DistanceX", 25, 2, 20, 2, 1.077))
sketch4.addConstraint(Sketcher.Constraint("DistanceX", 26, 2, 23, 2, 0.454799))
sketch4.addConstraint(Sketcher.Constraint("DistanceY", 29, 2, 32, 2, 0.1721))
sketch4.addConstraint(Sketcher.Constraint("DistanceX", 36, 2, 31, 2, 3.3403))
sketch4.addConstraint(Sketcher.Constraint("DistanceY", 38, 2, 36, 2, 0.184198))
sketch4.addConstraint(Sketcher.Constraint("DistanceY", 42, 2, 39, 2, 0.267102))
sketch4.addConstraint(Sketcher.Constraint("Distance", 7, 0.256309))
sketch4.addConstraint(Sketcher.Constraint("Distance", 12, 0.54164))
sketch4.addConstraint(Sketcher.Constraint("Distance", 13, 0.416941))
sketch4.addConstraint(Sketcher.Constraint("Distance", 14, 0.345722))
sketch4.addConstraint(Sketcher.Constraint("Distance", 20, 0.306339))
sketch4.addConstraint(Sketcher.Constraint("Distance", 21, 0.26785))
sketch4.addConstraint(Sketcher.Constraint("Distance", 24, 0.189519))
sketch4.addConstraint(Sketcher.Constraint("Distance", 25, 0.162429))
sketch4.addConstraint(Sketcher.Constraint("Distance", 35, 0.392411))
sketch4.addConstraint(Sketcher.Constraint("Distance", 36, 0.489208))
sketch4.addConstraint(Sketcher.Constraint("Distance", 40, 0.48158))
sketch4.addConstraint(Sketcher.Constraint("Distance", 44, 0.236991))
sketch4.addConstraint(Sketcher.Constraint("DistanceX", 0, 2, 0, 1, 0.157648))
sketch4.addConstraint(Sketcher.Constraint("DistanceX", 4, 1, 4, 2, 7.078473))
sketch4.addConstraint(Sketcher.Constraint("DistanceX", 6, 2, 6, 1, 0.123047))
sketch4.addConstraint(Sketcher.Constraint("DistanceX", 18, 2, 18, 1, 2.121284))
sketch4.addConstraint(Sketcher.Constraint("DistanceX", 43, 2, 43, 1, 0.589978))
sketch4.addConstraint(Sketcher.Constraint("DistanceY", 1, 2, 1, 1, 8.976736))
sketch4.addConstraint(Sketcher.Constraint("DistanceY", 5, 1, 5, 2, 8.921245))
sketch4.addConstraint(Sketcher.Constraint("DistanceX", 3, 2, -1, 1, 13.964551))
sketch4.addConstraint(Sketcher.Constraint("DistanceY", -1, 1, 7, 2, 10.616429))
sketch4.addConstraint(Sketcher.Constraint("DistanceY", -1, 1, 9, 2, 10.69274))
sketch4.addConstraint(Sketcher.Constraint("DistanceY", -1, 1, 10, 2, 10.778589))
sketch4.addConstraint(Sketcher.Constraint("DistanceX", 20, 2, -1, 1, 14.07626))
sketch4.addConstraint(Sketcher.Constraint("DistanceY", -1, 1, 21, 2, 11.11269))
sketch4.addConstraint(Sketcher.Constraint("DistanceY", -1, 1, 22, 2, 10.92315))
sketch4.addConstraint(Sketcher.Constraint("DistanceX", 24, 2, -1, 1, 15.022739))
sketch4.addConstraint(Sketcher.Constraint("DistanceY", -1, 1, 27, 2, 10.979439))
sketch4.addConstraint(Sketcher.Constraint("DistanceY", -1, 1, 29, 2, 11.155849))
sketch4.addConstraint(Sketcher.Constraint("DistanceX", 33, 2, -1, 1, 18.586872))
sketch4.addConstraint(Sketcher.Constraint("DistanceX", 34, 2, -1, 1, 18.911961))
sketch4.addConstraint(Sketcher.Constraint("DistanceX", 35, 2, -1, 1, 19.291429))
sketch4.addConstraint(Sketcher.Constraint("DistanceY", -1, 1, 36, 2, 11.066189))
sketch4.addConstraint(Sketcher.Constraint("DistanceX", 38, 2, -1, 1, 20.671532))
sketch4.addConstraint(Sketcher.Constraint("DistanceY", -1, 1, 40, 2, 10.795149))
sketch4.addConstraint(Sketcher.Constraint("DistanceX", 41, 2, -1, 1, 21.751048))
sketch4.addConstraint(Sketcher.Constraint("DistanceX", 43, 2, -1, 1, 22.866262))
sketch4.addConstraint(Sketcher.Constraint("DistanceX", 9, 2, 5, 2, 1.62064))
sketch4.addConstraint(Sketcher.Constraint("DistanceX", 10, 2, 8, 2, 0.791721))
sketch4.addConstraint(Sketcher.Constraint("DistanceX", 11, 2, 10, 2, 0.36015))
sketch4.addConstraint(Sketcher.Constraint("DistanceX", 12, 2, 11, 2, 0.52008))
sketch4.addConstraint(Sketcher.Constraint("DistanceX", 14, 2, 13, 2, 0.337231))
sketch4.addConstraint(Sketcher.Constraint("DistanceX", 15, 2, 14, 2, 0.320912))
sketch4.addConstraint(Sketcher.Constraint("DistanceX", 16, 2, 15, 2, 0.19581))
sketch4.addConstraint(Sketcher.Constraint("DistanceY", 15, 2, 17, 2, 0.087028))
sketch4.addConstraint(Sketcher.Constraint("DistanceX", 17, 2, 13, 2, 1.223819))
sketch4.addConstraint(Sketcher.Constraint("DistanceX", 22, 2, 18, 2, 1.171619))
sketch4.addConstraint(Sketcher.Constraint("DistanceY", 25, 2, 26, 2, 0.133311))
sketch4.addConstraint(Sketcher.Constraint("DistanceX", 27, 2, 23, 2, 0.625862))
sketch4.addConstraint(Sketcher.Constraint("DistanceX", 28, 2, 27, 2, 0.221849))
sketch4.addConstraint(Sketcher.Constraint("DistanceY", 26, 2, 28, 2, 0.21383))
sketch4.addConstraint(Sketcher.Constraint("DistanceX", 30, 2, 29, 2, 0.277979))
sketch4.addConstraint(Sketcher.Constraint("DistanceX", 30, 2, 27, 2, 0.735041))
sketch4.addConstraint(Sketcher.Constraint("DistanceX", 31, 2, 30, 2, 0.197379))
sketch4.addConstraint(Sketcher.Constraint("DistanceX", 37, 2, 36, 2, 0.548612))
sketch4.addConstraint(Sketcher.Constraint("DistanceY", 37, 2, 34, 2, 0.29711))
sketch4.addConstraint(Sketcher.Constraint("DistanceY", 41, 2, 39, 2, 0.181579))
sketch4.setExpression("Constraints[60]", "Params.sketch4_width")
pad3 = doc.addObject("PartDesign::Pad", "Pad002")
body.addObject(pad3)
pad3.Profile = sketch4
pad3.setExpression("Length", "Params.pad3_length")

doc.recompute()
